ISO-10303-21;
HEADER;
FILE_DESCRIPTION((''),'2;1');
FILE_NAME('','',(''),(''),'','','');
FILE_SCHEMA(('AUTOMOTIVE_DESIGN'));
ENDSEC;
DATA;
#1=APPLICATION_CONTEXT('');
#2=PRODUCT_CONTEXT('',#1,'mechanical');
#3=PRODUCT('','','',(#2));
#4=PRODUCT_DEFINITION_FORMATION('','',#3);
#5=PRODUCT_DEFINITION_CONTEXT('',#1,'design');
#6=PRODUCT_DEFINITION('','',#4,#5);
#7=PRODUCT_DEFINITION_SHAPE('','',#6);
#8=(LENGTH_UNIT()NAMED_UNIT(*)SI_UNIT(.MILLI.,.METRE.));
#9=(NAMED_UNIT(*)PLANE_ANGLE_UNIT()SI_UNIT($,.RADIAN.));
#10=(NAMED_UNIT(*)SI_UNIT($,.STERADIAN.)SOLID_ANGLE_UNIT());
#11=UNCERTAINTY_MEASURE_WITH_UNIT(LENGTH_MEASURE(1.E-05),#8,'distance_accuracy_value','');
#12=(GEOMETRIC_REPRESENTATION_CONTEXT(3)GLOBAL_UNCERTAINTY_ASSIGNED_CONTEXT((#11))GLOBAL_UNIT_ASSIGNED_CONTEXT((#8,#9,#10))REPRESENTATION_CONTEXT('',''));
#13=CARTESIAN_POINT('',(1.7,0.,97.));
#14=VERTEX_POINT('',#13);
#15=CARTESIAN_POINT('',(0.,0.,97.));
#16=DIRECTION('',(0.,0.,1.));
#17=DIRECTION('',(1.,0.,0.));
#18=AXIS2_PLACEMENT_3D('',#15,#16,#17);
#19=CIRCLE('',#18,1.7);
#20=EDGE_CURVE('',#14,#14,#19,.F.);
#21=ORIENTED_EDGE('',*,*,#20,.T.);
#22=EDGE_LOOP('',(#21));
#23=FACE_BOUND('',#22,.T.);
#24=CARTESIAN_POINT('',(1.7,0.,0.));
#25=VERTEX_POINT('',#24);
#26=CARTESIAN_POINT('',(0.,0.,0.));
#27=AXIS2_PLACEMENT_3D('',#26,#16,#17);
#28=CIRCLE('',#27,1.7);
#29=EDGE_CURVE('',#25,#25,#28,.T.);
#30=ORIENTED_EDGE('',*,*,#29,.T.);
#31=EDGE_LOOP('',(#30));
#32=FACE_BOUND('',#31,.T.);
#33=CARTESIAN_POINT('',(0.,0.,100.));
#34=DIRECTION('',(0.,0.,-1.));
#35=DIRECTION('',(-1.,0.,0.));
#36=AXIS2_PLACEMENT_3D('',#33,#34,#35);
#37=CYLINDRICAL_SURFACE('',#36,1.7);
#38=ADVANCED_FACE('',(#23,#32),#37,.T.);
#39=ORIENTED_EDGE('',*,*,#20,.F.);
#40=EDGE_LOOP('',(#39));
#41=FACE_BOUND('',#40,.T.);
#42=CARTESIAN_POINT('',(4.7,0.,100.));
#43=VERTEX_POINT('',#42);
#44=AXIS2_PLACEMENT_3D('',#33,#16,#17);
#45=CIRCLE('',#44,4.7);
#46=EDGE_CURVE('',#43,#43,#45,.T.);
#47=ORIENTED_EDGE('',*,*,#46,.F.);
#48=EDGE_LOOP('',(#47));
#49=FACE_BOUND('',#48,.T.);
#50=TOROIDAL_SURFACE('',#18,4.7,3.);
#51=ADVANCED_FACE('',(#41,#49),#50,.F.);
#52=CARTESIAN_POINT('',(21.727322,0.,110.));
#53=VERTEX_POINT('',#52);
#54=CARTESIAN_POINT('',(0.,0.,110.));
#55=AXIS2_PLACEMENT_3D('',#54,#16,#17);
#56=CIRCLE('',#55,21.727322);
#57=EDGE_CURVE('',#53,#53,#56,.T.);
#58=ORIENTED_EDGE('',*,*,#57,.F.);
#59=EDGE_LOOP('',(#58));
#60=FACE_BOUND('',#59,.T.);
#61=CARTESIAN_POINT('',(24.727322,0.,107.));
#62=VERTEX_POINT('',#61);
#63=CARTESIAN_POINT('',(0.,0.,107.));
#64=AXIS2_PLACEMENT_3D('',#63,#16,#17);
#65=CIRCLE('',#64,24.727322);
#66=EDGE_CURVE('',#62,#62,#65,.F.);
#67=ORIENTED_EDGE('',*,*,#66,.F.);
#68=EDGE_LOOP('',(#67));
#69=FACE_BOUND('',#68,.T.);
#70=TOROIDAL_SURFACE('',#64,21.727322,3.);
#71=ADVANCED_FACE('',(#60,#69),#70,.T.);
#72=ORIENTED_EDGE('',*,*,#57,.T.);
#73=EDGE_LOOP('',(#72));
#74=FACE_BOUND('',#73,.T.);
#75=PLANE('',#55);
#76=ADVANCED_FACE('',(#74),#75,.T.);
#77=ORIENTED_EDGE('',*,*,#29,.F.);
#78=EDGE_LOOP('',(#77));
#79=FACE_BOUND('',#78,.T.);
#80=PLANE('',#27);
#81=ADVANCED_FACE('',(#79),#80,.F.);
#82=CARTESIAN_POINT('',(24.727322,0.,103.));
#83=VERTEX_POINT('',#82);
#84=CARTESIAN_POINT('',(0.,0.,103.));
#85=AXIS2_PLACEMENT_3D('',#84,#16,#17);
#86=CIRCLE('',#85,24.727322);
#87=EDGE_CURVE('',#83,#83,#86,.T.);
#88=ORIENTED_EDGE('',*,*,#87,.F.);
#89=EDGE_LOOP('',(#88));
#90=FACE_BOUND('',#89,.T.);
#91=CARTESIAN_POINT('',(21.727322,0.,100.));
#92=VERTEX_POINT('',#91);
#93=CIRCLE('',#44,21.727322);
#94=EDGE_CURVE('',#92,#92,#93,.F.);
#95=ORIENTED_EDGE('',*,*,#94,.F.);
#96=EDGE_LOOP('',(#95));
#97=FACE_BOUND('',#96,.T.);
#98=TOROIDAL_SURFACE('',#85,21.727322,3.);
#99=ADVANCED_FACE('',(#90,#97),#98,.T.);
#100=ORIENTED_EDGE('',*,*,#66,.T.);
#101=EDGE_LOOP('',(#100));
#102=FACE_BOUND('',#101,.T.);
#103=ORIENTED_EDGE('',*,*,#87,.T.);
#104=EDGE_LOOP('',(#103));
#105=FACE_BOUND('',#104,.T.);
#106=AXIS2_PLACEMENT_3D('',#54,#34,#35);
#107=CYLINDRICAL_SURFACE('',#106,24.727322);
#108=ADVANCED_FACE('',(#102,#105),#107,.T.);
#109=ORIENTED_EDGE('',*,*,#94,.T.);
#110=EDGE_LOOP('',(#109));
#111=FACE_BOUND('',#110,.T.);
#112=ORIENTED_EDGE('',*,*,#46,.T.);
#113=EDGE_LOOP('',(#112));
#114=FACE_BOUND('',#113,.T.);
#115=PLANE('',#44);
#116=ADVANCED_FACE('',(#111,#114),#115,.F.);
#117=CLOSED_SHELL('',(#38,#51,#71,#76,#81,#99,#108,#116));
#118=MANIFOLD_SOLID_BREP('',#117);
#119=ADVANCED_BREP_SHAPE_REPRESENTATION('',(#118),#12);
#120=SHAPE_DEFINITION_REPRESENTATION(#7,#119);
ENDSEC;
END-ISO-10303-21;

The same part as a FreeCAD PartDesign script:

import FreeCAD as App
import Part
import Sketcher
Q = App.Units.Quantity


def edges_at(feature, points):
    """Names of the edges that pass closest to the given points."""
    edges = feature.Shape.Edges
    near = lambda p: min(range(len(edges)), key=lambda i: edges[i].distToShape(Part.Vertex(*p))[0])
    return sorted({f"Edge{near(p) + 1}" for p in points})

doc = App.newDocument("Part")
params = doc.addObject("Spreadsheet::Sheet", "Params")
for row, (alias, value) in enumerate([
    ("sketch1_diameter", "3.4 mm"),
    ("pad1_length", "100 mm"),
    ("pad2_length", "10 mm"),
    ("fillet_radius", "3 mm"),
], start=1):
    params.set(f"A{row}", alias)
    params.set(f"B{row}", "=" + value)
    params.setAlias(f"B{row}", alias)

body = doc.addObject("PartDesign::Body", "Body")

# Sketch on XY plane
sketch1 = body.newObject("Sketcher::SketchObject", "Sketch")
sketch1.AttachmentSupport = (doc.getObject("XY_Plane"), [""])
sketch1.MapMode = "FlatFace"
sketch1.addGeometry(Part.Circle(App.Vector(0, 0, 0), App.Vector(0, 0, 1), 1.7), False)
sketch1.addConstraint([
    Sketcher.Constraint("Coincident", 0, 3, -1, 1),
    Sketcher.Constraint("Diameter", 0, Q("3.4 mm")),
])
sketch1.setExpression("Constraints[1]", "Params.sketch1_diameter")
pad1 = body.newObject("PartDesign::Pad", "Pad")
pad1.Profile = sketch1
pad1.setExpression("Length", "Params.pad1_length")

# Sketch on XY plane
sketch2 = body.newObject("Sketcher::SketchObject", "Sketch001")
sketch2.AttachmentSupport = (doc.getObject("XY_Plane"), [""])
sketch2.MapMode = "FlatFace"
sketch2.AttachmentOffset = App.Placement(App.Vector(0, 0, 100), App.Rotation())
sketch2.addGeometry(Part.Circle(App.Vector(0, 0, 0), App.Vector(0, 0, 1), 24.727322), False)
sketch2.addConstraint([
    Sketcher.Constraint("Coincident", 0, 3, -1, 1),
    Sketcher.Constraint("Diameter", 0, Q("49.454644 mm")),
])
pad2 = body.newObject("PartDesign::Pad", "Pad001")
pad2.Profile = sketch2
pad2.setExpression("Length", "Params.pad2_length")
doc.recompute()

fillet = body.newObject("PartDesign::Fillet", "Fillet")
fillet.Base = (pad2, edges_at(pad2, [(-1.7, 0, 100), (-24.727, 0, 100), (-24.727, 0, 110)]))
fillet.setExpression("Radius", "Params.fillet_radius")

doc.recompute()
